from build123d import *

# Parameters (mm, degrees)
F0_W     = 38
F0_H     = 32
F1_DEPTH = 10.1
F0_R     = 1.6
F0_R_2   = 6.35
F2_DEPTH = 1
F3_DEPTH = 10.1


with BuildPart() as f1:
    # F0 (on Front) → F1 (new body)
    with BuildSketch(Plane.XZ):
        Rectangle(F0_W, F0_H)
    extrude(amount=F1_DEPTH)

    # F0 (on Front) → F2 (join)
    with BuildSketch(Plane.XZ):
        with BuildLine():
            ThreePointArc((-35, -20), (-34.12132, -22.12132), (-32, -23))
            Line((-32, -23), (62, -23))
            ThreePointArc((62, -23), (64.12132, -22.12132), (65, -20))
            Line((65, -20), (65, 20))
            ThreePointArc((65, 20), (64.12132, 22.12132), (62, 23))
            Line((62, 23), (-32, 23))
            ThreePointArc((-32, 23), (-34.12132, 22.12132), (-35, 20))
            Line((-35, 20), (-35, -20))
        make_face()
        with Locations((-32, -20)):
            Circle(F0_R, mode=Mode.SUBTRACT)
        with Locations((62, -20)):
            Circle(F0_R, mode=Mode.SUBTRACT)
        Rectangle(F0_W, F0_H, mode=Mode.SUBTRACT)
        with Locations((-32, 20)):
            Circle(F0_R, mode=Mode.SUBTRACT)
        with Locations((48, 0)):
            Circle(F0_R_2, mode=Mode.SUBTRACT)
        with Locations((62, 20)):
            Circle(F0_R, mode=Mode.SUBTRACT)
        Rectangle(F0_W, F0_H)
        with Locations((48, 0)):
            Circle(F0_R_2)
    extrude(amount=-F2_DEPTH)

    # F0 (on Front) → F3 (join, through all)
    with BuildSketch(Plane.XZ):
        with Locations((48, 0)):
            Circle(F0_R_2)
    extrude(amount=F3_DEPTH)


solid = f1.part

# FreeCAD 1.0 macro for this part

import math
import FreeCAD as App
import Part
import Sketcher

doc = App.newDocument("Part")
body = doc.addObject("PartDesign::Body", "Body")

# Sketch on XZ plane
sketch1 = doc.addObject("Sketcher::SketchObject", "Sketch")
body.addObject(sketch1)
sketch1.AttachmentSupport = (doc.XZ_Plane, [""])
sketch1.MapMode = "FlatFace"
sketch1.addGeometry([
    Part.LineSegment(App.Vector(-19, 16, 0), App.Vector(-19, -16, 0)),
    Part.LineSegment(App.Vector(-19, -16, 0), App.Vector(19, -16, 0)),
    Part.LineSegment(App.Vector(19, -16, 0), App.Vector(19, 16, 0)),
    Part.LineSegment(App.Vector(19, 16, 0), App.Vector(-19, 16, 0)),
], False)
sketch1.addConstraint([
    Sketcher.Constraint("Coincident", 0, 2, 1, 1),
    Sketcher.Constraint("Coincident", 1, 2, 2, 1),
    Sketcher.Constraint("Coincident", 2, 2, 3, 1),
    Sketcher.Constraint("Coincident", 3, 2, 0, 1),
    Sketcher.Constraint("Vertical", 0),
    Sketcher.Constraint("Horizontal", 1),
    Sketcher.Constraint("Vertical", 2),
    Sketcher.Constraint("Horizontal", 3),
    Sketcher.Constraint("Symmetric", 0, 2, 2, 2, -1, 1),
    Sketcher.Constraint("DistanceX", 1, 1, 1, 2, 38.0),
    Sketcher.Constraint("DistanceY", 0, 2, 0, 1, 32.0),
])
pad1 = doc.addObject("PartDesign::Pad", "Pad")
body.addObject(pad1)
pad1.Profile = sketch1
pad1.Length = 10.1

# Sketch on XZ plane
sketch2 = doc.addObject("Sketcher::SketchObject", "Sketch001")
body.addObject(sketch2)
sketch2.AttachmentSupport = (doc.XZ_Plane, [""])
sketch2.MapMode = "FlatFace"
sketch2.addGeometry([
    Part.ArcOfCircle(Part.Circle(App.Vector(-32, -20, 0), App.Vector(0, 0, 1), 3), math.radians(-180), math.radians(-90)),  # 0
    Part.LineSegment(App.Vector(-32, -23, 0), App.Vector(62, -23, 0)),  # 1
    Part.ArcOfCircle(Part.Circle(App.Vector(62, -20, 0), App.Vector(0, 0, 1), 3), math.radians(-90), math.radians(0)),  # 2
    Part.LineSegment(App.Vector(65, -20, 0), App.Vector(65, 20, 0)),  # 3
    Part.ArcOfCircle(Part.Circle(App.Vector(62, 20, 0), App.Vector(0, 0, 1), 3), math.radians(0), math.radians(90)),  # 4
    Part.LineSegment(App.Vector(62, 23, 0), App.Vector(-32, 23, 0)),  # 5
    Part.ArcOfCircle(Part.Circle(App.Vector(-32, 20, 0), App.Vector(0, 0, 1), 3), math.radians(90), math.radians(180)),  # 6
    Part.LineSegment(App.Vector(-35, 20, 0), App.Vector(-35, -20, 0)),  # 7
    Part.Circle(App.Vector(-32, -20, 0), App.Vector(0, 0, 1), 1.6),  # 8
    Part.Circle(App.Vector(62, -20, 0), App.Vector(0, 0, 1), 1.6),  # 9
    Part.Circle(App.Vector(-32, 20, 0), App.Vector(0, 0, 1), 1.6),  # 10
    Part.Circle(App.Vector(62, 20, 0), App.Vector(0, 0, 1), 1.6),  # 11
], False)
sketch2.addConstraint([
    Sketcher.Constraint("Tangent", 0, 2, 1, 1),
    Sketcher.Constraint("Tangent", 1, 2, 2, 1),
    Sketcher.Constraint("Tangent", 2, 2, 3, 1),
    Sketcher.Constraint("Tangent", 3, 2, 4, 1),
    Sketcher.Constraint("Tangent", 4, 2, 5, 1),
    Sketcher.Constraint("Tangent", 5, 2, 6, 1),
    Sketcher.Constraint("Tangent", 6, 2, 7, 1),
    Sketcher.Constraint("Tangent", 7, 2, 0, 1),
    Sketcher.Constraint("Horizontal", 1),
    Sketcher.Constraint("Vertical", 3),
    Sketcher.Constraint("Horizontal", 5),
    Sketcher.Constraint("Vertical", 7),
    Sketcher.Constraint("Coincident", 8, 3, 0, 3),
    Sketcher.Constraint("Coincident", 9, 3, 2, 3),
    Sketcher.Constraint("Coincident", 10, 3, 6, 3),
    Sketcher.Constraint("Coincident", 11, 3, 4, 3),
    Sketcher.Constraint("Equal", 0, 2),
    Sketcher.Constraint("Equal", 2, 4),
    Sketcher.Constraint("Equal", 4, 6),
    Sketcher.Constraint("Equal", 8, 9),
    Sketcher.Constraint("Equal", 9, 10),
    Sketcher.Constraint("Equal", 10, 11),
    Sketcher.Constraint("Radius", 0, 3.000001),
    Sketcher.Constraint("Diameter", 8, 3.2),
    Sketcher.Constraint("DistanceX", 1, 1, 1, 2, 94.0),
    Sketcher.Constraint("DistanceY", 3, 1, 3, 2, 40.0),
    Sketcher.Constraint("DistanceX", 0, 3, -1, 1, 31.999999),
    Sketcher.Constraint("DistanceY", 0, 3, -1, 1, 19.999999),
])
pad2 = doc.addObject("PartDesign::Pad", "Pad001")
body.addObject(pad2)
pad2.Profile = sketch2
pad2.Length = 1
pad2.Reversed = True

# Sketch on XZ plane
sketch3 = doc.addObject("Sketcher::SketchObject", "Sketch002")
body.addObject(sketch3)
sketch3.AttachmentSupport = (doc.XZ_Plane, [""])
sketch3.MapMode = "FlatFace"
sketch3.addGeometry(Part.Circle(App.Vector(48, 0, 0), App.Vector(0, 0, 1), 6), False)
sketch3.addConstraint([
    Sketcher.Constraint("PointOnObject", 0, 3, -1),
    Sketcher.Constraint("Diameter", 0, 12.7),
    Sketcher.Constraint("DistanceX", -1, 1, 0, 3, 48.0),
])
pad3 = doc.addObject("PartDesign::Pad", "Pad002")
body.addObject(pad3)
pad3.Profile = sketch3
pad3.Length = 10.1

doc.recompute()
